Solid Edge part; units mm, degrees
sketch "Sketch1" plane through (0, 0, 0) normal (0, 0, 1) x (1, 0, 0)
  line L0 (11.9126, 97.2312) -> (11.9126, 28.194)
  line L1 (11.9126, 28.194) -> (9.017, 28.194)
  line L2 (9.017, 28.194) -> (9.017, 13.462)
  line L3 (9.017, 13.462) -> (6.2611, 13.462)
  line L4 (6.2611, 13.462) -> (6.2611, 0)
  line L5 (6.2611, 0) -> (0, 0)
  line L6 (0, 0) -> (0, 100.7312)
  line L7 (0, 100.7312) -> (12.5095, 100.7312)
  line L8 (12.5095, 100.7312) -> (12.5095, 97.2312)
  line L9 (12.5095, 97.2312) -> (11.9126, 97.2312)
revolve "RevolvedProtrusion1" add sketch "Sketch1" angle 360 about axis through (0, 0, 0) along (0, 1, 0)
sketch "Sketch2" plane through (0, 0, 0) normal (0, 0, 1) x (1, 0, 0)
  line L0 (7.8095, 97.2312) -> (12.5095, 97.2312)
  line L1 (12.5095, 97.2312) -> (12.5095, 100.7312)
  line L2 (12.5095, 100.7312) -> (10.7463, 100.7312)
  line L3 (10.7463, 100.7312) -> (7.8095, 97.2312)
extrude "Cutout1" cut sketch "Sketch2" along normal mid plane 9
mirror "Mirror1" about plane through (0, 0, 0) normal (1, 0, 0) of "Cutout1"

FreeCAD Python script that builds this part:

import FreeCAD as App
import Part
import Sketcher

V = App.Vector
Q = App.Units.Quantity

doc = App.newDocument("Part")
body = doc.addObject("PartDesign::Body", "Body")

# Sketch on XY plane
sketch1 = doc.addObject("Sketcher::SketchObject", "Sketch")
body.addObject(sketch1)
sketch1.AttachmentSupport = (doc.XY_Plane, [""])
sketch1.MapMode = "FlatFace"
sketch1.addGeometry(Part.LineSegment(V(11.9126, 28.194, 0), V(11.9126, 97.2312, 0)), False)
sketch1.addGeometry(Part.LineSegment(V(11.9126, 97.2312, 0), V(12.5095, 97.2312, 0)), False)
sketch1.addGeometry(Part.LineSegment(V(12.5095, 97.2312, 0), V(12.5095, 100.7312, 0)), False)
sketch1.addGeometry(Part.LineSegment(V(12.5095, 100.7312, 0), V(0, 100.7312, 0)), False)
sketch1.addGeometry(Part.LineSegment(V(0, 100.7312, 0), V(0, 0, 0)), False)
sketch1.addGeometry(Part.LineSegment(V(0, 0, 0), V(6.2611, 0, 0)), False)
sketch1.addGeometry(Part.LineSegment(V(6.2611, 0, 0), V(6.2611, 13.462, 0)), False)
sketch1.addGeometry(Part.LineSegment(V(6.2611, 13.462, 0), V(9.017, 13.462, 0)), False)
sketch1.addGeometry(Part.LineSegment(V(9.017, 13.462, 0), V(9.017, 28.194, 0)), False)
sketch1.addGeometry(Part.LineSegment(V(9.017, 28.194, 0), V(11.9126, 28.194, 0)), False)
sketch1.addConstraint(Sketcher.Constraint("Coincident", 0, 2, 1, 1))
sketch1.addConstraint(Sketcher.Constraint("Coincident", 1, 2, 2, 1))
sketch1.addConstraint(Sketcher.Constraint("Coincident", 2, 2, 3, 1))
sketch1.addConstraint(Sketcher.Constraint("Coincident", 3, 2, 4, 1))
sketch1.addConstraint(Sketcher.Constraint("Coincident", 4, 2, 5, 1))
sketch1.addConstraint(Sketcher.Constraint("Coincident", 5, 2, 6, 1))
sketch1.addConstraint(Sketcher.Constraint("Coincident", 6, 2, 7, 1))
sketch1.addConstraint(Sketcher.Constraint("Coincident", 7, 2, 8, 1))
sketch1.addConstraint(Sketcher.Constraint("Coincident", 8, 2, 9, 1))
sketch1.addConstraint(Sketcher.Constraint("Coincident", 9, 2, 0, 1))
sketch1.addConstraint(Sketcher.Constraint("Vertical", 0))
sketch1.addConstraint(Sketcher.Constraint("Horizontal", 1))
sketch1.addConstraint(Sketcher.Constraint("Vertical", 2))
sketch1.addConstraint(Sketcher.Constraint("Horizontal", 3))
sketch1.addConstraint(Sketcher.Constraint("Vertical", 4))
sketch1.addConstraint(Sketcher.Constraint("Horizontal", 5))
sketch1.addConstraint(Sketcher.Constraint("Vertical", 6))
sketch1.addConstraint(Sketcher.Constraint("Horizontal", 7))
sketch1.addConstraint(Sketcher.Constraint("Vertical", 8))
sketch1.addConstraint(Sketcher.Constraint("Horizontal", 9))
sketch1.addConstraint(Sketcher.Constraint("Coincident", 4, 2, -1, 1))
sketch1.addConstraint(Sketcher.Constraint("DistanceY", 6, 1, 6, 2, Q("0.53 in")))
sketch1.addConstraint(Sketcher.Constraint("DistanceY", 8, 1, 8, 2, Q("0.58 in")))
sketch1.addConstraint(Sketcher.Constraint("DistanceX", 9, 1, 9, 2, Q("0.114 in")))
sketch1.addConstraint(Sketcher.Constraint("DistanceY", 0, 1, 0, 2, Q("2.718 in")))
sketch1.addConstraint(Sketcher.Constraint("DistanceX", 1, 1, 1, 2, Q("0.0235 in")))
sketch1.addConstraint(Sketcher.Constraint("DistanceX", 3, 2, 3, 1, Q("0.4925 in")))
sketch1.addConstraint(Sketcher.Constraint("DistanceX", 5, 1, 5, 2, Q("0.2465 in")))
sketch1.addConstraint(Sketcher.Constraint("DistanceY", 2, 1, 2, 2, Q("0.1378 in")))
revolution = doc.addObject("PartDesign::Revolution", "Revolution")
body.addObject(revolution)
revolution.Profile = sketch1
revolution.ReferenceAxis = (sketch1, ["V_Axis"])
revolution.Angle = 360

# Sketch on XY plane
sketch2 = doc.addObject("Sketcher::SketchObject", "Sketch001")
body.addObject(sketch2)
sketch2.AttachmentSupport = (doc.XY_Plane, [""])
sketch2.MapMode = "FlatFace"
sketch2.addGeometry(Part.LineSegment(V(10.7463, 100.7312, 0), V(7.8095, 97.2312, 0)), False)
sketch2.addGeometry(Part.LineSegment(V(7.8095, 97.2312, 0), V(12.5095, 97.2312, 0)), False)
sketch2.addGeometry(Part.LineSegment(V(12.5095, 97.2312, 0), V(12.5095, 100.7312, 0)), False)
sketch2.addGeometry(Part.LineSegment(V(12.5095, 100.7312, 0), V(10.7463, 100.7312, 0)), False)
sketch2.addConstraint(Sketcher.Constraint("Coincident", 0, 2, 1, 1))
sketch2.addConstraint(Sketcher.Constraint("Coincident", 1, 2, 2, 1))
sketch2.addConstraint(Sketcher.Constraint("Coincident", 2, 2, 3, 1))
sketch2.addConstraint(Sketcher.Constraint("Coincident", 3, 2, 0, 1))
sketch2.addConstraint(Sketcher.Constraint("Horizontal", 1))
sketch2.addConstraint(Sketcher.Constraint("Vertical", 2))
sketch2.addConstraint(Sketcher.Constraint("Horizontal", 3))
sketch2.addConstraint(Sketcher.Constraint("Angle", 0, Q("-129.9995 deg")))
sketch2.addConstraint(Sketcher.Constraint("DistanceY", 2, 1, 2, 2, Q("0.1378 in")))
sketch2.addConstraint(Sketcher.Constraint("DistanceY", -1, 1, 0, 2, Q("3.828 in")))
sketch2.addConstraint(Sketcher.Constraint("DistanceX", 1, 1, 1, 2, 4.7))
sketch2.addConstraint(Sketcher.Constraint("DistanceX", -1, 1, 1, 2, Q("0.4925 in")))
pocket1 = doc.addObject("PartDesign::Pocket", "Pocket")
body.addObject(pocket1)
pocket1.Profile = sketch2
pocket1.Length = 9
pocket1.Midplane = True
doc.recompute()

mirrored = doc.addObject("PartDesign::Mirrored", "Mirrored")
body.addObject(mirrored)
mirrored.Originals = [pocket1]
mirrored.MirrorPlane = (doc.YZ_Plane, [""])
body.Tip = mirrored

doc.recompute()
